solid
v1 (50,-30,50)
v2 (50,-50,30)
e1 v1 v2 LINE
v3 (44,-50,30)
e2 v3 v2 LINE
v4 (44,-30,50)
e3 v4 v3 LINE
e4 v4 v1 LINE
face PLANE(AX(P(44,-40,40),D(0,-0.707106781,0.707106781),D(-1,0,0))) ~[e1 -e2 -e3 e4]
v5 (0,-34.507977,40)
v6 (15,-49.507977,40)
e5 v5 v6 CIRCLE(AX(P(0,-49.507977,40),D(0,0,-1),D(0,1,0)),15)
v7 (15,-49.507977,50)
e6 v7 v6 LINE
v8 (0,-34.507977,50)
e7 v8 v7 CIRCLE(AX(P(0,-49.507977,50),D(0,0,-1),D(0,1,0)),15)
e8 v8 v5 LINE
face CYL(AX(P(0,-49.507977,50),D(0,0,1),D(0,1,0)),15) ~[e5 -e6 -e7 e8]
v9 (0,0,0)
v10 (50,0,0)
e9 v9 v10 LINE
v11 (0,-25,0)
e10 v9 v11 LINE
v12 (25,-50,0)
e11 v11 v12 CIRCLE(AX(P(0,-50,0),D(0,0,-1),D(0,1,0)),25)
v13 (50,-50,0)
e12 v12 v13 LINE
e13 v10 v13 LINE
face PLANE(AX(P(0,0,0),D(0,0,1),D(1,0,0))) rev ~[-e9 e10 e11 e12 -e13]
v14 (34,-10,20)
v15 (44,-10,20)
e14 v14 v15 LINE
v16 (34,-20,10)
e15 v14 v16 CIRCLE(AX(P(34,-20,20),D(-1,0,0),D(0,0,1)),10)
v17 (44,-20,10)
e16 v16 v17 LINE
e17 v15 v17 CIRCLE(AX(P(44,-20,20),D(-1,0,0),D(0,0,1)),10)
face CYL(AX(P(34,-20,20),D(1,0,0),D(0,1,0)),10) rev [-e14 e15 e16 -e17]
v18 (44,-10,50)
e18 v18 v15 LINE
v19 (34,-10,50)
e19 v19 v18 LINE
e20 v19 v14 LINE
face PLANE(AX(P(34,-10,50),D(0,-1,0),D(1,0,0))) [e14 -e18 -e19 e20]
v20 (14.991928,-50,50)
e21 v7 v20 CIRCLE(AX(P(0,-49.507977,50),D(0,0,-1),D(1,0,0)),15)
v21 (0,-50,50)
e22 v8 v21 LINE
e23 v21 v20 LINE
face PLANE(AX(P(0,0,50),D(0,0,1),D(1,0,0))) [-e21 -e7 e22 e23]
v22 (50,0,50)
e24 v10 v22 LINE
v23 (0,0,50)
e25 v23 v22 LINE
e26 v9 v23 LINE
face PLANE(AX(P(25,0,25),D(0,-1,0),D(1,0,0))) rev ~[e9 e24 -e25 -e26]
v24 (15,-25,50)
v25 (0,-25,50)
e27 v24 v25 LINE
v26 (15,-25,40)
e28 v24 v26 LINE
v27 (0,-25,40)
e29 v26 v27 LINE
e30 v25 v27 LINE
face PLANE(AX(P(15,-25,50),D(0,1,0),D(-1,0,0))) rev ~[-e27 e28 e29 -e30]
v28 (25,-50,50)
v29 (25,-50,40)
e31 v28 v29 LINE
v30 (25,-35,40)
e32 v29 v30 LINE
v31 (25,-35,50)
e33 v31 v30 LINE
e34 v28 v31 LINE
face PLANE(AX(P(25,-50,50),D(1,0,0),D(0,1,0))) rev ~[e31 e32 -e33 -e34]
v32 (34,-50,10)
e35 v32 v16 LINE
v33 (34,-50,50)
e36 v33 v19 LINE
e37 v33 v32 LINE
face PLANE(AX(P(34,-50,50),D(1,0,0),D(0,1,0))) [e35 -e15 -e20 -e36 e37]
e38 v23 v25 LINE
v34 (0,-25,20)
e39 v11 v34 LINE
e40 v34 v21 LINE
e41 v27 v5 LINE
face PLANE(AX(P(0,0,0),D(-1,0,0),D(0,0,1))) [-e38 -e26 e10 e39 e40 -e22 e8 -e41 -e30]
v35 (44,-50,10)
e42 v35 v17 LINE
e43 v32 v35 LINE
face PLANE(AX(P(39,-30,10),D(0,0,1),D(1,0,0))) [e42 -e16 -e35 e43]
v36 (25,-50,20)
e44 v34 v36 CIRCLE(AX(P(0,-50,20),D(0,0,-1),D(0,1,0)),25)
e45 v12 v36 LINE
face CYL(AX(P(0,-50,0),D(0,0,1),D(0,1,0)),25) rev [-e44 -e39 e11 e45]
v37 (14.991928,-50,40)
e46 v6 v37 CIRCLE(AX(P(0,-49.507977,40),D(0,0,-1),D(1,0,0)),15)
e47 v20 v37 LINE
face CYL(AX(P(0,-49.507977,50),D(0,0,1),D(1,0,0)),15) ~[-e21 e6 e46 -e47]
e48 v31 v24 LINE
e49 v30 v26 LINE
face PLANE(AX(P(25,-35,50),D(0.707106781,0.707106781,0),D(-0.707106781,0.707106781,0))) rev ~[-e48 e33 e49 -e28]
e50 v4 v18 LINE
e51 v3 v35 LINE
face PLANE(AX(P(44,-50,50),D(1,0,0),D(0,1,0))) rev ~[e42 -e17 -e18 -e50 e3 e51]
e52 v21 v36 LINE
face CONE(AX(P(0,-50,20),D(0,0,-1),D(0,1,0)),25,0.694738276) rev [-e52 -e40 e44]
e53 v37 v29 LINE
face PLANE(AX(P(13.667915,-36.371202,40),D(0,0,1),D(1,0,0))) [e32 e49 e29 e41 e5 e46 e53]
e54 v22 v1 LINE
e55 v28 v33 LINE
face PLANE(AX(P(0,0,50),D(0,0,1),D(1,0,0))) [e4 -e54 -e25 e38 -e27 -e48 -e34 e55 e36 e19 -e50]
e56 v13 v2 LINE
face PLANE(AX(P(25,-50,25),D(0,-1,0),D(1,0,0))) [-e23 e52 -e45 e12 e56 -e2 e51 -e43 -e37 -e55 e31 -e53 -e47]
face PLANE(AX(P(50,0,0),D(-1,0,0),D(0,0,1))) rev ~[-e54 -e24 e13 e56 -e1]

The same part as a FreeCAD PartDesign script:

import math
import FreeCAD as App
import Part
import Sketcher
from FreeCAD import Vector
Q = App.Units.Quantity


def edges_at(feature, points):
    """Names of the edges that pass closest to the given points."""
    edges = feature.Shape.Edges
    near = lambda p: min(range(len(edges)), key=lambda i: edges[i].distToShape(Part.Vertex(*p))[0])
    return sorted({f"Edge{near(p) + 1}" for p in points})

doc = App.newDocument("Part")
body = doc.addObject("PartDesign::Body", "Body")

# Sketch on XZ plane
sketch1 = doc.addObject("Sketcher::SketchObject", "Sketch")
body.addObject(sketch1)
sketch1.AttachmentSupport = (doc.XZ_Plane, [""])
sketch1.MapMode = "FlatFace"
sketch1.addGeometry([
    Part.LineSegment(Vector(0, 50, 0), Vector(0, 0, 0)),
    Part.LineSegment(Vector(0, 0, 0), Vector(50, 0, 0)),
    Part.LineSegment(Vector(50, 0, 0), Vector(50, 50, 0)),
    Part.LineSegment(Vector(50, 50, 0), Vector(0, 50, 0)),
], False)
sketch1.addConstraint([
    Sketcher.Constraint("Coincident", 0, 2, 1, 1),
    Sketcher.Constraint("Coincident", 1, 2, 2, 1),
    Sketcher.Constraint("Coincident", 2, 2, 3, 1),
    Sketcher.Constraint("Coincident", 3, 2, 0, 1),
    Sketcher.Constraint("Vertical", 0),
    Sketcher.Constraint("Horizontal", 1),
    Sketcher.Constraint("Vertical", 2),
    Sketcher.Constraint("Horizontal", 3),
    Sketcher.Constraint("Coincident", 0, 2, -1, 1),
    Sketcher.Constraint("Equal", 3, 0),
    Sketcher.Constraint("DistanceX", 1, 1, 1, 2, 50.0),
])
pad1 = doc.addObject("PartDesign::Pad", "Pad")
body.addObject(pad1)
pad1.Profile = sketch1
pad1.Length = 50

# Sketch on XY plane
sketch2 = doc.addObject("Sketcher::SketchObject", "Sketch001")
body.addObject(sketch2)
sketch2.AttachmentSupport = (doc.XY_Plane, [""])
sketch2.MapMode = "FlatFace"
sketch2.AttachmentOffset = App.Placement(Vector(0, 0, 50), App.Rotation())
sketch2.addGeometry([
    Part.LineSegment(Vector(34, -10, 0), Vector(34, -50, 0)),
    Part.LineSegment(Vector(34, -50, 0), Vector(44, -50, 0)),
    Part.LineSegment(Vector(44, -50, 0), Vector(44, -10, 0)),
    Part.LineSegment(Vector(44, -10, 0), Vector(34, -10, 0)),
], False)
sketch2.addConstraint([
    Sketcher.Constraint("Coincident", 0, 2, 1, 1),
    Sketcher.Constraint("Coincident", 1, 2, 2, 1),
    Sketcher.Constraint("Coincident", 2, 2, 3, 1),
    Sketcher.Constraint("Coincident", 3, 2, 0, 1),
    Sketcher.Constraint("Vertical", 0),
    Sketcher.Constraint("Horizontal", 1),
    Sketcher.Constraint("Vertical", 2),
    Sketcher.Constraint("Horizontal", 3),
    Sketcher.Constraint("DistanceX", 1, 1, 1, 2, 10.0),
    Sketcher.Constraint("DistanceY", 0, 2, 0, 1, 40.0),
    Sketcher.Constraint("DistanceX", -1, 1, 0, 2, 34.0),
    Sketcher.Constraint("DistanceY", 0, 2, -1, 1, 50.0),
])
pocket1 = doc.addObject("PartDesign::Pocket", "Pocket")
body.addObject(pocket1)
pocket1.Profile = sketch2
pocket1.Length = 40
doc.recompute()

fillet = doc.addObject("PartDesign::Fillet", "Fillet")
body.addObject(fillet)
fillet.Base = (pocket1, edges_at(pocket1, [(39, -10, 10)]))
fillet.Radius = 10
doc.recompute()

chamfer = doc.addObject("PartDesign::Chamfer", "Chamfer")
body.addObject(chamfer)
chamfer.Base = (fillet, edges_at(fillet, [(47, -50, 50)]))
chamfer.Size = 20

# Sketch on YZ plane
sketch3 = doc.addObject("Sketcher::SketchObject", "Sketch002")
body.addObject(sketch3)
sketch3.AttachmentSupport = (doc.YZ_Plane, [""])
sketch3.MapMode = "FlatFace"
sketch3.addGeometry([
    Part.LineSegment(Vector(-25, 20, 0), Vector(-50, 50, 0)),
    Part.LineSegment(Vector(-50, 50, 0), Vector(-50, 0, 0)),
    Part.LineSegment(Vector(-50, 0, 0), Vector(-25, 0, 0)),
    Part.LineSegment(Vector(-25, 0, 0), Vector(-25, 20, 0)),
], False)
sketch3.addGeometry(Part.LineSegment(Vector(-50, 50, 0), Vector(-50, 0, 0)), True)  # axis
sketch3.addConstraint([
    Sketcher.Constraint("Coincident", 0, 2, 1, 1),
    Sketcher.Constraint("Coincident", 1, 2, 2, 1),
    Sketcher.Constraint("Coincident", 2, 2, 3, 1),
    Sketcher.Constraint("Coincident", 3, 2, 0, 1),
    Sketcher.Constraint("Vertical", 1),
    Sketcher.Constraint("Horizontal", 2),
    Sketcher.Constraint("Vertical", 3),
    Sketcher.Constraint("Vertical", 4),
    Sketcher.Constraint("Coincident", 4, 1, 0, 2),
    Sketcher.Constraint("PointOnObject", 1, 2, -1),
    Sketcher.Constraint("PointOnObject", 4, 2, -1),
    Sketcher.Constraint("DistanceX", 2, 1, 2, 2, 25.0),
    Sketcher.Constraint("DistanceY", 1, 2, 1, 1, 50.0),
    Sketcher.Constraint("DistanceY", 3, 1, 3, 2, 20.0),
    Sketcher.Constraint("DistanceX", 0, 2, -1, 1, 50.0),
])
groove = doc.addObject("PartDesign::Groove", "Groove")
body.addObject(groove)
groove.Profile = sketch3
groove.ReferenceAxis = (sketch3, ["Axis0"])
groove.Angle = 180

# Sketch on XY plane
sketch4 = doc.addObject("Sketcher::SketchObject", "Sketch003")
body.addObject(sketch4)
sketch4.AttachmentSupport = (doc.XY_Plane, [""])
sketch4.MapMode = "FlatFace"
sketch4.AttachmentOffset = App.Placement(Vector(0, 0, 50), App.Rotation())
sketch4.addGeometry([
    Part.ArcOfCircle(Part.Circle(Vector(0, -49.51, 0), Vector(0, 0, 1), 15), math.radians(0), math.radians(90)),  # 0
    Part.ArcOfCircle(Part.Circle(Vector(0, -49.51, 0), Vector(0, 0, 1), 15), math.radians(-1.88), math.radians(0)),  # 1
    Part.LineSegment(Vector(14.99, -50, 0), Vector(25, -50, 0)),  # 2
    Part.LineSegment(Vector(25, -50, 0), Vector(25, -35, 0)),  # 3
    Part.LineSegment(Vector(25, -35, 0), Vector(15, -25, 0)),  # 4
    Part.LineSegment(Vector(15, -25, 0), Vector(0, -25, 0)),  # 5
    Part.LineSegment(Vector(0, -25, 0), Vector(0, -34.51, 0)),  # 6
], False)
sketch4.addConstraint([
    Sketcher.Constraint("Tangent", 0, 1, 1, 2),
    Sketcher.Constraint("Coincident", 1, 1, 2, 1),
    Sketcher.Constraint("Coincident", 2, 2, 3, 1),
    Sketcher.Constraint("Coincident", 3, 2, 4, 1),
    Sketcher.Constraint("Coincident", 4, 2, 5, 1),
    Sketcher.Constraint("Coincident", 5, 2, 6, 1),
    Sketcher.Constraint("Coincident", 6, 2, 0, 2),
    Sketcher.Constraint("Horizontal", 2),
    Sketcher.Constraint("Vertical", 3),
    Sketcher.Constraint("Horizontal", 5),
    Sketcher.Constraint("Vertical", 6),
    Sketcher.Constraint("Equal", 0, 1),
    Sketcher.Constraint("PointOnObject", 0, 3, -2),
    Sketcher.Constraint("PointOnObject", 5, 2, -2),
    Sketcher.Constraint("Horizontal", 1, 3, 0, 1),
    Sketcher.Constraint("Vertical", 0, 1, 4, 2),
    Sketcher.Constraint("Equal", 5, 3),
    Sketcher.Constraint("Radius", 0, 15.0),
    Sketcher.Constraint("Angle", 4, Q("135 deg")),
    Sketcher.Constraint("DistanceY", 1, 1, -1, 1, 50.0),
    Sketcher.Constraint("DistanceX", -1, 1, 2, 2, 25.0),
    Sketcher.Constraint("DistanceX", 2, 1, 2, 2, 10.008072),
])
pocket2 = doc.addObject("PartDesign::Pocket", "Pocket001")
body.addObject(pocket2)
pocket2.Profile = sketch4
pocket2.Length = 10

doc.recompute()
